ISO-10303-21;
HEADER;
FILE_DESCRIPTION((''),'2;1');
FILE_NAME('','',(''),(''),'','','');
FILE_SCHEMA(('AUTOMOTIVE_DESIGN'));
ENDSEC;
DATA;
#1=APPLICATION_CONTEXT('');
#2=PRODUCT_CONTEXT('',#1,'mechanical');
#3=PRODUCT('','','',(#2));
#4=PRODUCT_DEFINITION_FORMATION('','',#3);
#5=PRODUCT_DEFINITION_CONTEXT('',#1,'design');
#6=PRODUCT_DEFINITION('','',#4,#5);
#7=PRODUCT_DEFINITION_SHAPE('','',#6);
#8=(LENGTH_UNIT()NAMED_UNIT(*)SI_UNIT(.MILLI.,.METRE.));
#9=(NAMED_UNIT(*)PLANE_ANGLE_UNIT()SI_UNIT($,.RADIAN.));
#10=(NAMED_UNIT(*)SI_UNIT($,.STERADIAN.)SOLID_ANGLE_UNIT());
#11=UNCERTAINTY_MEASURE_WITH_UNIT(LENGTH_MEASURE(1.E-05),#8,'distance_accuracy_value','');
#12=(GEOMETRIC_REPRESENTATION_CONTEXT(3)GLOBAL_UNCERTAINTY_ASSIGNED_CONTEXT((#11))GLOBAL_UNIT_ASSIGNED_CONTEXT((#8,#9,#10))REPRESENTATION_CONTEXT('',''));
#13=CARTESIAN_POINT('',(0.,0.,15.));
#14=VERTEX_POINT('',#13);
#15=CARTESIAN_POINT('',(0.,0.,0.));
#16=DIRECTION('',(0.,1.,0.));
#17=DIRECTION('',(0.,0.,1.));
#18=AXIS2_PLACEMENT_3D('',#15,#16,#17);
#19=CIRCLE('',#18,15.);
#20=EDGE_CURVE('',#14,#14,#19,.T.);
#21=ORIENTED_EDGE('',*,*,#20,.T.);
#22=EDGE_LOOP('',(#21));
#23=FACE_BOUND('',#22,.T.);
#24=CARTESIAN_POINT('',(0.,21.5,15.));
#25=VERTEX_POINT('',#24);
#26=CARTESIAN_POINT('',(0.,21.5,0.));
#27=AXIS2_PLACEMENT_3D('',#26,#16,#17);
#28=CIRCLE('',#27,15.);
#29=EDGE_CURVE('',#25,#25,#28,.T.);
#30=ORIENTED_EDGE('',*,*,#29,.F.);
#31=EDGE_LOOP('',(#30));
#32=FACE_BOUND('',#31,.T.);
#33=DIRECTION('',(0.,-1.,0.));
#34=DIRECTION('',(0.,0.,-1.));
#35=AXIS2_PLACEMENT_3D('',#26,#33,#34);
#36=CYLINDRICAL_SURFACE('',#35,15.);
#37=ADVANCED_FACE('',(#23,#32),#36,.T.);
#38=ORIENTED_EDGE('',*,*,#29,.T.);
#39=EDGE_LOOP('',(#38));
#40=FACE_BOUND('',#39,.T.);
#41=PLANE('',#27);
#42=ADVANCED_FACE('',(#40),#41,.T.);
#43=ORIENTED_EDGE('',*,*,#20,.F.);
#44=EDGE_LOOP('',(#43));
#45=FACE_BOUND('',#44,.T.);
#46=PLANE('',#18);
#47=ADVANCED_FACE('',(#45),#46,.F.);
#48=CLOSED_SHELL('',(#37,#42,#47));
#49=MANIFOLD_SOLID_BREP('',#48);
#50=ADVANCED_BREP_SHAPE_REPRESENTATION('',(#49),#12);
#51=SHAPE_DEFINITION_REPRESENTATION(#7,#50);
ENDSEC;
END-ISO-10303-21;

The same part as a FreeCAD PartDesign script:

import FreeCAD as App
import Part
import Sketcher
from FreeCAD import Vector

doc = App.newDocument("Part")
body = doc.addObject("PartDesign::Body", "Body")

# Sketch on XZ plane
sketch1 = body.newObject("Sketcher::SketchObject", "Sketch")
sketch1.AttachmentSupport = (doc.getObject("XZ_Plane"), [""])
sketch1.MapMode = "FlatFace"
sketch1.addGeometry(Part.Circle(Vector(0, 0, 0), Vector(0, 0, 1), 15), False)
sketch1.addConstraint(Sketcher.Constraint("Coincident", 0, 3, -1, 1))
sketch1.addConstraint(Sketcher.Constraint("Diameter", 0, 30.0))
pad1 = body.newObject("PartDesign::Pad", "Pad")
pad1.Profile = sketch1
pad1.Length = 21.5
pad1.Reversed = True

doc.recompute()
